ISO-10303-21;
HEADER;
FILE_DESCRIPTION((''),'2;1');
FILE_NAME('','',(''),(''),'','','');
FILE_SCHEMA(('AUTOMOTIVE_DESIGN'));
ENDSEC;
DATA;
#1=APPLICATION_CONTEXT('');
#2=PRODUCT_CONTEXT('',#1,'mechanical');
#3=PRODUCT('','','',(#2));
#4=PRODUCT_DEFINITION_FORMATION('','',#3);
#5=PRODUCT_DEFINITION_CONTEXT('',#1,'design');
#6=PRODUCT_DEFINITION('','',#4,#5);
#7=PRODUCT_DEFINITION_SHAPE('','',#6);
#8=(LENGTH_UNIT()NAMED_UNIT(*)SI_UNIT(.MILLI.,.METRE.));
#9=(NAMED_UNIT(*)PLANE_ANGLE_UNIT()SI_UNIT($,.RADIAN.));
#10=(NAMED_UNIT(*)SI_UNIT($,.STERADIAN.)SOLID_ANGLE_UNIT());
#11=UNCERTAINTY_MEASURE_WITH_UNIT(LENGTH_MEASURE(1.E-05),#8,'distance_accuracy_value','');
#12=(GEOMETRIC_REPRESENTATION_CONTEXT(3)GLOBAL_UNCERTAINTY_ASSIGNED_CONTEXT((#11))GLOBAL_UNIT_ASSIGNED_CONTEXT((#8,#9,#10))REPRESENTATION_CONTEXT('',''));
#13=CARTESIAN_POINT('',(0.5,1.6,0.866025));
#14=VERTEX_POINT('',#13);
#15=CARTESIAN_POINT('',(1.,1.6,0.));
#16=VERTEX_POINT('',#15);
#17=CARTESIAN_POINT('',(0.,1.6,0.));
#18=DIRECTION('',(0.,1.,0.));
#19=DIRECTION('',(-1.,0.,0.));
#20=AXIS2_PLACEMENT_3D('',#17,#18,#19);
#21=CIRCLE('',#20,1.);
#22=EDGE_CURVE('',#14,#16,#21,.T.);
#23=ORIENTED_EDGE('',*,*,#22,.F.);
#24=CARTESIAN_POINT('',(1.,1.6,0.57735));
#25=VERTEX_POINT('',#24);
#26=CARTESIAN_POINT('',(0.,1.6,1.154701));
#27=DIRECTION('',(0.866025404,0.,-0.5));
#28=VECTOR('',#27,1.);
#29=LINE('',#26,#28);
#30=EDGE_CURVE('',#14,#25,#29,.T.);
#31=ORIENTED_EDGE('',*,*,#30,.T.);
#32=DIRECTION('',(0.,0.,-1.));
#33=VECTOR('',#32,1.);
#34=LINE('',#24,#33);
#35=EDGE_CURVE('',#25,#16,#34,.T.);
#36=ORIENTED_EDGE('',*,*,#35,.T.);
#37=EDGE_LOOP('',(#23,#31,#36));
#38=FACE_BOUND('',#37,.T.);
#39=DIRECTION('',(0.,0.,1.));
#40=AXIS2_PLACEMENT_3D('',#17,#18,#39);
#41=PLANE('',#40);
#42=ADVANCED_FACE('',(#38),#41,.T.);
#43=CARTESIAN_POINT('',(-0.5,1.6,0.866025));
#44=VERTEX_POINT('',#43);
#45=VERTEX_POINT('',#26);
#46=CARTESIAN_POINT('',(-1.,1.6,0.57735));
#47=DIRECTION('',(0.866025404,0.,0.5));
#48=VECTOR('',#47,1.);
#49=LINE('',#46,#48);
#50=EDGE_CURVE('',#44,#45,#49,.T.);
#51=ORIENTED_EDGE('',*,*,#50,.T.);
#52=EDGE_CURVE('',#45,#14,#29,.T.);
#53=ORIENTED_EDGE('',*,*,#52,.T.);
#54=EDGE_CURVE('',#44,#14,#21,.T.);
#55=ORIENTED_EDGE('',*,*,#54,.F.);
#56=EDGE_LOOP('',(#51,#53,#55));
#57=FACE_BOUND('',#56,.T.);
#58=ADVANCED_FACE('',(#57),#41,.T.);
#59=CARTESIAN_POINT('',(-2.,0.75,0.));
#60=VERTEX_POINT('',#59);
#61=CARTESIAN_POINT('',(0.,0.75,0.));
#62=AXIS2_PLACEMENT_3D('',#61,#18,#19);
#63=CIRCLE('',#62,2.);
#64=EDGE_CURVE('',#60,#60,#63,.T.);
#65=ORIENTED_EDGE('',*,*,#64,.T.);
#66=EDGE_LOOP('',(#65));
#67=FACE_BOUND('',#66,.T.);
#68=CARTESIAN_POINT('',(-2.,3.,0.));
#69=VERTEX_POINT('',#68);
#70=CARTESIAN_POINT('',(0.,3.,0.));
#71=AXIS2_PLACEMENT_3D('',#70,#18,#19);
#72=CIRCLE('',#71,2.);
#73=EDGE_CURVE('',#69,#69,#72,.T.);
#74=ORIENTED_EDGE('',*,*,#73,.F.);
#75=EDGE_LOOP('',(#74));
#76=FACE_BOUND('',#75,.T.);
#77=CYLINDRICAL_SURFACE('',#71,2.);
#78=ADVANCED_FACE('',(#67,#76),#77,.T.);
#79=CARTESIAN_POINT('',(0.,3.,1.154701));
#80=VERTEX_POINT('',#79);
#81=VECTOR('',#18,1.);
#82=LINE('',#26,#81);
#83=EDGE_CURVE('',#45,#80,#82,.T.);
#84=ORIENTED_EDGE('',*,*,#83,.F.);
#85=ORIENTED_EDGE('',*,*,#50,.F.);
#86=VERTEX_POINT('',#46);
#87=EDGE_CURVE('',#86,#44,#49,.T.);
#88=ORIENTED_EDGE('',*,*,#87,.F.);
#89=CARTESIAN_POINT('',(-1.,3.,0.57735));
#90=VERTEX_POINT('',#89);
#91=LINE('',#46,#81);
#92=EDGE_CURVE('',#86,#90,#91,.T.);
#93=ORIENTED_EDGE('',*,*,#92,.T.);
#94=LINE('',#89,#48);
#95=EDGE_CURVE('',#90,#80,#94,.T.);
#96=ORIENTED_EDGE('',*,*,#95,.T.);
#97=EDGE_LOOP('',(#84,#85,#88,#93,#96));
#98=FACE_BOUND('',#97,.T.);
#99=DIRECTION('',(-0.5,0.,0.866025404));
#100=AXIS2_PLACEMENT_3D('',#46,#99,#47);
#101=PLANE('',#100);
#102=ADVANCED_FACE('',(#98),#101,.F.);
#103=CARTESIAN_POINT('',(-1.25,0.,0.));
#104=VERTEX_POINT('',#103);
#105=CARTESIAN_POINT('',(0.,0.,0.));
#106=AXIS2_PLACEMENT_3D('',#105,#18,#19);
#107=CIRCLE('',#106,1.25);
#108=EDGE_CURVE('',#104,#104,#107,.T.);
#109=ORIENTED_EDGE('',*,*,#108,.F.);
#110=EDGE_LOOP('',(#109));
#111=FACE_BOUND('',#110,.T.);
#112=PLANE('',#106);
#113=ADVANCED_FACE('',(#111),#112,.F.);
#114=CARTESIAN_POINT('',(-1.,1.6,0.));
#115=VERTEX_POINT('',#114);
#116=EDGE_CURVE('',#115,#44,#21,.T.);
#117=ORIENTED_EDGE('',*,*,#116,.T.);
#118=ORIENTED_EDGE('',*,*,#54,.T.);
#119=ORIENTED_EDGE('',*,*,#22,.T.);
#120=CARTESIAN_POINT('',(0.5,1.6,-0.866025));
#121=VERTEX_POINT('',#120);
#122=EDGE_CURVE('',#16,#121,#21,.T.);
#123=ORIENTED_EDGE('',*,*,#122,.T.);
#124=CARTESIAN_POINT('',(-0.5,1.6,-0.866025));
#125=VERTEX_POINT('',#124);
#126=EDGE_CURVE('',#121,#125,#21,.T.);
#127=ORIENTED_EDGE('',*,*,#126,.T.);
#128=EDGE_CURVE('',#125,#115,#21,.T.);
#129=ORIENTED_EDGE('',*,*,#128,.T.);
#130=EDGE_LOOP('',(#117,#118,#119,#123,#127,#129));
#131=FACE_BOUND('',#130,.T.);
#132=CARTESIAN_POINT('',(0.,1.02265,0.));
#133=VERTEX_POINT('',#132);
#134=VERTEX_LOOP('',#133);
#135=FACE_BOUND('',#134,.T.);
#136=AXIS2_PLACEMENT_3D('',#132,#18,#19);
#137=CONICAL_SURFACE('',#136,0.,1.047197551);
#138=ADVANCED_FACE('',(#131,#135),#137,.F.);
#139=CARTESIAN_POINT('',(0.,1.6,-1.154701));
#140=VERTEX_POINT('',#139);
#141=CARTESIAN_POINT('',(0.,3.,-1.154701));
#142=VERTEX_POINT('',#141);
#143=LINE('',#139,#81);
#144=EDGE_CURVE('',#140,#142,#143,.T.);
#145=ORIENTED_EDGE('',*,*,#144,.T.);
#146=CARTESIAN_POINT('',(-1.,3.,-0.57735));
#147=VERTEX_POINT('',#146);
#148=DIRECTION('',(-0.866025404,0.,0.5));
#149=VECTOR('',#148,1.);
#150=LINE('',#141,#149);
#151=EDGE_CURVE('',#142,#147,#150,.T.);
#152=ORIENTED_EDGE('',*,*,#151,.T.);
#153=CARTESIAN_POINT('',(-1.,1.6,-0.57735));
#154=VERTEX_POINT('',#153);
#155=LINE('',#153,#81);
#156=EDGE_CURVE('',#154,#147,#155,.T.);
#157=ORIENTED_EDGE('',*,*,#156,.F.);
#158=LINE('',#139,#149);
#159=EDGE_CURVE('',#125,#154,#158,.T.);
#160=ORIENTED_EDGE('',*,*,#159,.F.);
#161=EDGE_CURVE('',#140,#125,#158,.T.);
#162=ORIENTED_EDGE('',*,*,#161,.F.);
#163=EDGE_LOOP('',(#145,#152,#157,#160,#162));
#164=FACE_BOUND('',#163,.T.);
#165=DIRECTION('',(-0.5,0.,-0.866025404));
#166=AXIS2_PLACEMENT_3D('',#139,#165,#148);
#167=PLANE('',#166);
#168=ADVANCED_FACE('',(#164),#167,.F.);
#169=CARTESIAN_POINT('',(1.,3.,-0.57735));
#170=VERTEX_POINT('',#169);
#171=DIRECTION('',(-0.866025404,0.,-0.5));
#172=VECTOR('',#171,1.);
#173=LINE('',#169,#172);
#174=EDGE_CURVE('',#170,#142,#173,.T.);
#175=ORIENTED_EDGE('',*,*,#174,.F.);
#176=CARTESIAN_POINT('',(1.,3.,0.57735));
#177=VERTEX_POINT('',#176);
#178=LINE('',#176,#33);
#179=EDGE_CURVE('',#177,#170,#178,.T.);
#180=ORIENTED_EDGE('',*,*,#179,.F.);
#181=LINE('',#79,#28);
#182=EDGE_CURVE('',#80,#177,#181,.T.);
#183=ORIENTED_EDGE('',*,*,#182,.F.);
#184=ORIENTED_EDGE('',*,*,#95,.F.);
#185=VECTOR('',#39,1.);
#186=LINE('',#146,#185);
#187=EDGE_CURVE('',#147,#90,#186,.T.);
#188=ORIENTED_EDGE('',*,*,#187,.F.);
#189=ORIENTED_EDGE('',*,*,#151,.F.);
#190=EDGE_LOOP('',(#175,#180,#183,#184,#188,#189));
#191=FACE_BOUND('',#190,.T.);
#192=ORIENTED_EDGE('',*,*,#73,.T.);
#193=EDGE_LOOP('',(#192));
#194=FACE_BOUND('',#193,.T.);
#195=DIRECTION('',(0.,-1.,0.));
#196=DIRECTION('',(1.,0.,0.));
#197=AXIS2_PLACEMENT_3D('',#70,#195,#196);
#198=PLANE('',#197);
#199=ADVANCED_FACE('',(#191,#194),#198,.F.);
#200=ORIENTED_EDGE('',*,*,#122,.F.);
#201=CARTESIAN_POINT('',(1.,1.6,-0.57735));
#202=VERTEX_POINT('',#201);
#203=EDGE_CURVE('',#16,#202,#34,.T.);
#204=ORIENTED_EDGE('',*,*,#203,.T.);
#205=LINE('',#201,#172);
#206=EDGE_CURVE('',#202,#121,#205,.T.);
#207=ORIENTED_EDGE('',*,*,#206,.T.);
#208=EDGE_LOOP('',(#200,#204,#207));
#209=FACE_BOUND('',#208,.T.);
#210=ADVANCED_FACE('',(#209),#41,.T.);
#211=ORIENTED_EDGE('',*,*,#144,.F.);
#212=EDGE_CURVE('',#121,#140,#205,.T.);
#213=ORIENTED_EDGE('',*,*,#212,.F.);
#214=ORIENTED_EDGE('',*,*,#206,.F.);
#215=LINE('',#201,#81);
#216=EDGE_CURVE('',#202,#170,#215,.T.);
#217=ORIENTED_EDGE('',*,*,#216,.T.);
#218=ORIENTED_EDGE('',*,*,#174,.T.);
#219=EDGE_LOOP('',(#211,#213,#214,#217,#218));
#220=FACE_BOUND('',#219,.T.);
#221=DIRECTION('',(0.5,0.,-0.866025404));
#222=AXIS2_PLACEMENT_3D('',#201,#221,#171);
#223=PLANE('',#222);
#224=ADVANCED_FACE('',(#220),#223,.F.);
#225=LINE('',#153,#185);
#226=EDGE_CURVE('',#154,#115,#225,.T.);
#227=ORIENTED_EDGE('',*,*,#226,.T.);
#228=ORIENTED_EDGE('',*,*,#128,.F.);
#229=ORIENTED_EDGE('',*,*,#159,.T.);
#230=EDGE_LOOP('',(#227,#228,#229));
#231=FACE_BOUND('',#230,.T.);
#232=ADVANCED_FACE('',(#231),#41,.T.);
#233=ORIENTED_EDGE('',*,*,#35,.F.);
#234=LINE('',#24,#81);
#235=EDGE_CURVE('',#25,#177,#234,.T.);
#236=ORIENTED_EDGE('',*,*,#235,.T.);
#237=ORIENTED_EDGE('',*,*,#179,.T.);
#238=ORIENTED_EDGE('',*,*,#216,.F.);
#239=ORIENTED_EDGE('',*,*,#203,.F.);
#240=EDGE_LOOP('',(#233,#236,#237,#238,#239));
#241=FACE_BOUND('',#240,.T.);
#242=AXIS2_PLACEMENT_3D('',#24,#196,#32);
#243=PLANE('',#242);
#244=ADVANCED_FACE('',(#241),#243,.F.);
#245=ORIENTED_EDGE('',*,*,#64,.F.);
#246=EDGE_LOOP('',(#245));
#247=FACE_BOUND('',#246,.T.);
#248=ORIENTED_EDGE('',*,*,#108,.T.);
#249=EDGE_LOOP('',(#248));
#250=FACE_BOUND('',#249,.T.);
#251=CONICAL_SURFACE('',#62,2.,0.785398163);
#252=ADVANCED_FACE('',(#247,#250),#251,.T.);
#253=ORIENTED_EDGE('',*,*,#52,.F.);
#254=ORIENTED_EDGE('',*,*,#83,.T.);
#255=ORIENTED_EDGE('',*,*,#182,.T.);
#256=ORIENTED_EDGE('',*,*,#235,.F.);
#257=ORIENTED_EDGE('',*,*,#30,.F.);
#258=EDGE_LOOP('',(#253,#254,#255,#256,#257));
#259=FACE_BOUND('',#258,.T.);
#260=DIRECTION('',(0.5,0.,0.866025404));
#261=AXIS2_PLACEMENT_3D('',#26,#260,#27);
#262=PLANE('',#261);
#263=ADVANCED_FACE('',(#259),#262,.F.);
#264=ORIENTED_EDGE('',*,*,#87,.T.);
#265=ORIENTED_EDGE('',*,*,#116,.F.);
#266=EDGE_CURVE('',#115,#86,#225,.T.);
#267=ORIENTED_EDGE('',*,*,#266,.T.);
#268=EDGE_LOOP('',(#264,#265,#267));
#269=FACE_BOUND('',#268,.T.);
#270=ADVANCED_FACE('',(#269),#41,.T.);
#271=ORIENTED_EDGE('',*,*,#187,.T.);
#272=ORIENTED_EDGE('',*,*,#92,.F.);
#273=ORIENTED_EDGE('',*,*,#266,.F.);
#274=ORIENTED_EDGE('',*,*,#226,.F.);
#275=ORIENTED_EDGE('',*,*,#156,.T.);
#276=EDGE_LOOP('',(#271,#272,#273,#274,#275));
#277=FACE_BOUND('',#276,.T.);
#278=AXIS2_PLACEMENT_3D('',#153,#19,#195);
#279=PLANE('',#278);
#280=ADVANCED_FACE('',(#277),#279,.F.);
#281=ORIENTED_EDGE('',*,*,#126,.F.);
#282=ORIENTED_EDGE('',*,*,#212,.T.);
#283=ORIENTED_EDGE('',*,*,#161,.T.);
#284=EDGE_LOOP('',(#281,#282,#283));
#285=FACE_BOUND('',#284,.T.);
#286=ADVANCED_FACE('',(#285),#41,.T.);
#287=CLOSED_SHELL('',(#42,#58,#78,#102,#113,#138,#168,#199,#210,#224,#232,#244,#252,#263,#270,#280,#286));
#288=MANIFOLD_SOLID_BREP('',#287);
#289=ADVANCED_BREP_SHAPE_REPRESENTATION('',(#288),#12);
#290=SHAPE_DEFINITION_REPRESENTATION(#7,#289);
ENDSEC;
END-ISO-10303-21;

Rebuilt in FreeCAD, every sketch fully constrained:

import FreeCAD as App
import Part
import Sketcher

V = App.Vector
Q = App.Units.Quantity


def add_polygon(sketch, points):
    """Adds a closed chain of lines whose ends are joined by coincident constraints."""
    first, n = sketch.GeometryCount, len(points)
    for a, b in zip(points, points[1:] + points[:1]):
        sketch.addGeometry(Part.LineSegment(App.Vector(*a, 0), App.Vector(*b, 0)), False)
    for i in range(n):
        sketch.addConstraint(Sketcher.Constraint("Coincident", first + i, 2, first + (i + 1) % n, 1))

doc = App.newDocument("Part")
body = doc.addObject("PartDesign::Body", "Body")

sketch1 = body.newObject("Sketcher::SketchObject", "Sketch")
sketch1.AttachmentSupport = (doc.getObject("XY_Plane"), [""])
sketch1.MapMode = "FlatFace"
add_polygon(sketch1, [(0, 3), (0, 0), (2, 0), (2, 3)])
sketch1.addConstraint([
    Sketcher.Constraint("Vertical", 0),
    Sketcher.Constraint("Horizontal", 1),
    Sketcher.Constraint("Vertical", 2),
    Sketcher.Constraint("Horizontal", 3),
    Sketcher.Constraint("Coincident", 0, 2, -1, 1),
    Sketcher.Constraint("DistanceX", 1, 1, 1, 2, 2.0),
    Sketcher.Constraint("DistanceY", 0, 2, 0, 1, 3.0),
])
revolution = body.newObject("PartDesign::Revolution", "Revolution")
revolution.Profile = sketch1
revolution.ReferenceAxis = (sketch1, ["V_Axis"])
revolution.Angle = 360

sketch2 = body.newObject("Sketcher::SketchObject", "Sketch001")
sketch2.AttachmentSupport = (doc.getObject("XY_Plane"), [""])
sketch2.MapMode = "FlatFace"
add_polygon(sketch2, [(1, 3), (0, 3), (0, 1), (1, 1.6)])
sketch2.addConstraint([
    Sketcher.Constraint("Horizontal", 0),
    Sketcher.Constraint("Vertical", 1),
    Sketcher.Constraint("Vertical", 3),
    Sketcher.Constraint("PointOnObject", 0, 2, -2),
    Sketcher.Constraint("DistanceX", 0, 2, 0, 1, 1.0),
    Sketcher.Constraint("Angle", 2, Q("30 deg")),
    Sketcher.Constraint("DistanceY", 3, 1, 3, 2, 1.4),
    Sketcher.Constraint("DistanceY", -1, 1, 0, 2, 3.0),
])
groove = body.newObject("PartDesign::Groove", "Groove")
groove.Profile = sketch2
groove.ReferenceAxis = (sketch2, ["V_Axis"])
groove.Angle = 360

sketch3 = body.newObject("Sketcher::SketchObject", "Sketch002")
sketch3.AttachmentSupport = (doc.getObject("XZ_Plane"), [""])
sketch3.MapMode = "FlatFace"
sketch3.AttachmentOffset = App.Placement(V(0, 0, -3), App.Rotation())
add_polygon(sketch3, [(0, -1.2), (-1, -0.6), (-1, 0.6), (0, 1.2), (1, 0.6), (1, -0.6)])
sketch3.addConstraint([
    Sketcher.Constraint("Vertical", 1),
    Sketcher.Constraint("Vertical", 4),
    Sketcher.Constraint("Symmetric", 0, 2, 3, 2, -1, 1),
    Sketcher.Constraint("Symmetric", 2, 2, 5, 2, -1, 1),
    Sketcher.Constraint("PointOnObject", 2, 2, -2),
    Sketcher.Constraint("Parallel", 2, 5),
    Sketcher.Constraint("Horizontal", 1, 2, 3, 2),
    Sketcher.Constraint("Angle", 0, Q("150 deg")),
    Sketcher.Constraint("DistanceX", 0, 2, -1, 1, 1.0),
    Sketcher.Constraint("DistanceY", 1, 1, 1, 2, 1.154701),
])
pocket1 = body.newObject("PartDesign::Pocket", "Pocket")
pocket1.Profile = sketch3
pocket1.Length = 1.4
pocket1.Reversed = True

sketch4 = body.newObject("Sketcher::SketchObject", "Sketch003")
sketch4.AttachmentSupport = (doc.getObject("XY_Plane"), [""])
sketch4.MapMode = "FlatFace"
add_polygon(sketch4, [(2, 0), (2, 0.8), (1.2, 0)])
sketch4.addConstraint([
    Sketcher.Constraint("Vertical", 0),
    Sketcher.Constraint("Horizontal", 2),
    Sketcher.Constraint("PointOnObject", 1, 2, -1),
    Sketcher.Constraint("Equal", 2, 0),
    Sketcher.Constraint("DistanceX", -1, 1, 0, 2, 2.0),
    Sketcher.Constraint("DistanceX", 2, 1, 2, 2, 0.75),
])
groove2 = body.newObject("PartDesign::Groove", "Groove001")
groove2.Profile = sketch4
groove2.ReferenceAxis = (sketch4, ["V_Axis"])
groove2.Angle = 360

doc.recompute()
